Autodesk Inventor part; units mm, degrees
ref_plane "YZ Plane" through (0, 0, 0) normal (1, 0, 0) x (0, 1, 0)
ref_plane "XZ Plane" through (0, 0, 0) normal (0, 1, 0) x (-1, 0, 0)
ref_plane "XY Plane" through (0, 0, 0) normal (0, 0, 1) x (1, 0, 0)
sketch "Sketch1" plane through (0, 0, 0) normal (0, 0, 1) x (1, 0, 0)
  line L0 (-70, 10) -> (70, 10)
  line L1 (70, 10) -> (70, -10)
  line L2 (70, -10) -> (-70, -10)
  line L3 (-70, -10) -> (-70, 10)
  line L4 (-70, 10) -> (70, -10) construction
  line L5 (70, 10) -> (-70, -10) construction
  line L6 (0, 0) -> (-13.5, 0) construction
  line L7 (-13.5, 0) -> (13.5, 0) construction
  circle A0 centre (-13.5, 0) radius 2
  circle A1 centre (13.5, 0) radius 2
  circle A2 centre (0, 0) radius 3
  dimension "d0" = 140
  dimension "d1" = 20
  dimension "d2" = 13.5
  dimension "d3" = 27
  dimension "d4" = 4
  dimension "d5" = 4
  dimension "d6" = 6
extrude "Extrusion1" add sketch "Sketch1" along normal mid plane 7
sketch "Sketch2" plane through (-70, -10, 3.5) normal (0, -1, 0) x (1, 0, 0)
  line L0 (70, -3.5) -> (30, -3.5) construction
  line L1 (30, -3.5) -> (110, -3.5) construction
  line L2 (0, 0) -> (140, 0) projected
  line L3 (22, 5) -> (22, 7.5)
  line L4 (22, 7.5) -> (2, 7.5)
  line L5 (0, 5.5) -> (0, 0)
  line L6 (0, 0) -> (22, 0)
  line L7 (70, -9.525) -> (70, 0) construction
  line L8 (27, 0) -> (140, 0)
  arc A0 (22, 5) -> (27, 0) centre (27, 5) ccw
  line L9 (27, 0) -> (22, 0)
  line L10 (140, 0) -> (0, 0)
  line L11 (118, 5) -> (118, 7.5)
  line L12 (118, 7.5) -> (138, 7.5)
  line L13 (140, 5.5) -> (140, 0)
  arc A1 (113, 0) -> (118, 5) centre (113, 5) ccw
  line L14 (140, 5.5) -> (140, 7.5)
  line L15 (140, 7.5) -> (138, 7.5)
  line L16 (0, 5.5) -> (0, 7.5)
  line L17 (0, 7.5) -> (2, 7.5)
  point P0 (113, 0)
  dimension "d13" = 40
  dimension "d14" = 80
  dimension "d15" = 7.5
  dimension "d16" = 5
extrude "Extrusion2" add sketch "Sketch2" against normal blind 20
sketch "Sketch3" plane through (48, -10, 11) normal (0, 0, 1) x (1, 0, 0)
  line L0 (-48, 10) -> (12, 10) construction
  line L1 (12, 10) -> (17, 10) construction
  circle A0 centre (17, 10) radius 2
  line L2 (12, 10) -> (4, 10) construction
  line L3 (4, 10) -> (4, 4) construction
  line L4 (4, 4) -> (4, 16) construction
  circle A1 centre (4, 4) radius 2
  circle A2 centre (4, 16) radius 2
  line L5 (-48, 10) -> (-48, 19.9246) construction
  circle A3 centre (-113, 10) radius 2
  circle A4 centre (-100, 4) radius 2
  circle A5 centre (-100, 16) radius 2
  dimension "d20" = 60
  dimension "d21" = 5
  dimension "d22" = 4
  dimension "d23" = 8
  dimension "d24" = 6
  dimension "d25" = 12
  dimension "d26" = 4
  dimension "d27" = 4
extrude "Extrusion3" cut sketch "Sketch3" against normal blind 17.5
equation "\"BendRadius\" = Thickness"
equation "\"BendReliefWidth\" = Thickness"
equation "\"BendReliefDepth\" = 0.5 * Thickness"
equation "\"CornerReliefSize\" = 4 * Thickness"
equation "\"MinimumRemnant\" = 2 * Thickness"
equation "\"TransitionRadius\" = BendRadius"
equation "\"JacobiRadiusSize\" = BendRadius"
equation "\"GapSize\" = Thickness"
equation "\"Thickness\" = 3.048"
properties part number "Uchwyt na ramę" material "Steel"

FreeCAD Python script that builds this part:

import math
import FreeCAD as App
import Part
import Sketcher
from FreeCAD import Vector


def add_polygon(sketch, points):
    """Adds a closed chain of lines whose ends are joined by coincident constraints."""
    first, n = sketch.GeometryCount, len(points)
    for a, b in zip(points, points[1:] + points[:1]):
        sketch.addGeometry(Part.LineSegment(App.Vector(*a, 0), App.Vector(*b, 0)), False)
    for i in range(n):
        sketch.addConstraint(Sketcher.Constraint("Coincident", first + i, 2, first + (i + 1) % n, 1))

doc = App.newDocument("Part")
params = doc.addObject("Spreadsheet::Sheet", "Params")
for row, (alias, value) in enumerate([
    ("sketch1_diameter", "4 mm"),
    ("sketch1_diameter2", "6 mm"),
    ("sketch1_width", "140 mm"),
    ("sketch1_height", "20 mm"),
    ("pad1_length", "7 mm"),
    ("sketch2_radius", "5 mm"),
    ("sketch2_height", "7.5 mm"),
    ("sketch2_width", "27 mm"),
    ("pad2_length", "20 mm"),
    ("sketch3_diameter", "4 mm"),
    ("pocket1_length", "17.5 mm"),
], start=1):
    params.set(f"A{row}", alias)
    params.set(f"B{row}", "=" + value)
    params.setAlias(f"B{row}", alias)

body = doc.addObject("PartDesign::Body", "Body")

# Sketch on XY plane
sketch1 = doc.addObject("Sketcher::SketchObject", "Sketch")
body.addObject(sketch1)
sketch1.AttachmentSupport = (doc.XY_Plane, [""])
sketch1.MapMode = "FlatFace"
add_polygon(sketch1, [(70, 10), (-70, 10), (-70, -10), (70, -10)])  # lines 0-3
sketch1.addGeometry(Part.Circle(Vector(-13.5, 0, 0), Vector(0, 0, 1), 2), False)  # 4
sketch1.addGeometry(Part.Circle(Vector(0, 0, 0), Vector(0, 0, 1), 3), False)  # 5
sketch1.addGeometry(Part.Circle(Vector(13.5, 0, 0), Vector(0, 0, 1), 2), False)  # 6
sketch1.addConstraint([
    Sketcher.Constraint("Horizontal", 0),
    Sketcher.Constraint("Vertical", 1),
    Sketcher.Constraint("Horizontal", 2),
    Sketcher.Constraint("Vertical", 3),
    Sketcher.Constraint("Coincident", 5, 3, -1, 1),
    Sketcher.Constraint("Equal", 4, 6),
    Sketcher.Constraint("Symmetric", 4, 3, 6, 3, -1, 1),
    Sketcher.Constraint("Symmetric", 0, 2, 2, 2, -1, 1),
    Sketcher.Constraint("PointOnObject", 4, 3, -1),
    Sketcher.Constraint("Diameter", 4, 4.0),
    Sketcher.Constraint("Diameter", 5, 6.0),
    Sketcher.Constraint("DistanceX", 0, 2, 0, 1, 140.0),
    Sketcher.Constraint("DistanceY", 1, 2, 1, 1, 20.0),
    Sketcher.Constraint("DistanceX", 4, 3, 6, 3, 27.0),
])
sketch1.setExpression("Constraints[13]", "Params.sketch1_diameter")
sketch1.setExpression("Constraints[14]", "Params.sketch1_diameter2")
sketch1.setExpression("Constraints[15]", "Params.sketch1_width")
sketch1.setExpression("Constraints[16]", "Params.sketch1_height")
pad1 = doc.addObject("PartDesign::Pad", "Pad")
body.addObject(pad1)
pad1.Profile = sketch1
pad1.setExpression("Length", "Params.pad1_length")
pad1.Midplane = True

# Sketch on XZ plane
sketch2 = doc.addObject("Sketcher::SketchObject", "Sketch001")
body.addObject(sketch2)
sketch2.AttachmentSupport = (doc.XZ_Plane, [""])
sketch2.MapMode = "FlatFace"
sketch2.AttachmentOffset = App.Placement(Vector(0, 0, 10), App.Rotation())
sketch2.addGeometry([
    Part.LineSegment(Vector(-70, 11, 0), Vector(-70, 3.5, 0)),  # 0
    Part.LineSegment(Vector(-70, 3.5, 0), Vector(-43, 3.5, 0)),  # 1
    Part.ArcOfCircle(Part.Circle(Vector(-43, 8.5, 0), Vector(0, 0, 1), 5), math.radians(180), math.radians(270)),  # 2
    Part.LineSegment(Vector(-48, 8.5, 0), Vector(-48, 11, 0)),  # 3
    Part.LineSegment(Vector(-48, 11, 0), Vector(-70, 11, 0)),  # 4
    Part.ArcOfCircle(Part.Circle(Vector(43, 8.5, 0), Vector(0, 0, 1), 5), math.radians(-90), math.radians(0)),  # 5
    Part.LineSegment(Vector(43, 3.5, 0), Vector(70, 3.5, 0)),  # 6
    Part.LineSegment(Vector(70, 3.5, 0), Vector(70, 11, 0)),  # 7
    Part.LineSegment(Vector(70, 11, 0), Vector(48, 11, 0)),  # 8
    Part.LineSegment(Vector(48, 11, 0), Vector(48, 8.5, 0)),  # 9
], False)
sketch2.addConstraint([
    Sketcher.Constraint("Coincident", 0, 2, 1, 1),
    Sketcher.Constraint("Tangent", 1, 2, 2, 2),
    Sketcher.Constraint("Tangent", 2, 1, 3, 1),
    Sketcher.Constraint("Coincident", 3, 2, 4, 1),
    Sketcher.Constraint("Coincident", 4, 2, 0, 1),
    Sketcher.Constraint("Tangent", 5, 1, 6, 1),
    Sketcher.Constraint("Coincident", 6, 2, 7, 1),
    Sketcher.Constraint("Coincident", 7, 2, 8, 1),
    Sketcher.Constraint("Coincident", 8, 2, 9, 1),
    Sketcher.Constraint("Tangent", 9, 2, 5, 2),
    Sketcher.Constraint("Vertical", 0),
    Sketcher.Constraint("Horizontal", 1),
    Sketcher.Constraint("Vertical", 3),
    Sketcher.Constraint("Horizontal", 4),
    Sketcher.Constraint("Horizontal", 6),
    Sketcher.Constraint("Vertical", 7),
    Sketcher.Constraint("Horizontal", 8),
    Sketcher.Constraint("Vertical", 9),
    Sketcher.Constraint("Equal", 2, 5),
    Sketcher.Constraint("Symmetric", 2, 3, 5, 3, -2),
    Sketcher.Constraint("Symmetric", 4, 2, 7, 2, -2),
    Sketcher.Constraint("Radius", 2, 5.0),
    Sketcher.Constraint("DistanceY", 0, 2, 0, 1, 7.5),
    Sketcher.Constraint("DistanceX", 1, 1, 1, 2, 27.0),
    Sketcher.Constraint("DistanceX", 2, 3, -1, 1, 43.0),
    Sketcher.Constraint("DistanceY", -1, 1, 3, 2, 11.0),
])
sketch2.setExpression("Constraints[21]", "Params.sketch2_radius")
sketch2.setExpression("Constraints[22]", "Params.sketch2_height")
sketch2.setExpression("Constraints[23]", "Params.sketch2_width")
pad2 = doc.addObject("PartDesign::Pad", "Pad001")
body.addObject(pad2)
pad2.Profile = sketch2
pad2.setExpression("Length", "Params.pad2_length")
pad2.Reversed = True

# Sketch on XY plane
sketch3 = doc.addObject("Sketcher::SketchObject", "Sketch002")
body.addObject(sketch3)
sketch3.AttachmentSupport = (doc.XY_Plane, [""])
sketch3.MapMode = "FlatFace"
sketch3.AttachmentOffset = App.Placement(Vector(0, 0, 11), App.Rotation())
sketch3.addGeometry([
    Part.Circle(Vector(65, 0, 0), Vector(0, 0, 1), 2),  # 0
    Part.Circle(Vector(52, -6, 0), Vector(0, 0, 1), 2),  # 1
    Part.Circle(Vector(52, 6, 0), Vector(0, 0, 1), 2),  # 2
    Part.Circle(Vector(-65, 0, 0), Vector(0, 0, 1), 2),  # 3
    Part.Circle(Vector(-52, -6, 0), Vector(0, 0, 1), 2),  # 4
    Part.Circle(Vector(-52, 6, 0), Vector(0, 0, 1), 2),  # 5
], False)
sketch3.addConstraint([
    Sketcher.Constraint("Equal", 0, 1),
    Sketcher.Constraint("Equal", 1, 2),
    Sketcher.Constraint("Equal", 2, 3),
    Sketcher.Constraint("Equal", 3, 4),
    Sketcher.Constraint("Equal", 4, 5),
    Sketcher.Constraint("Symmetric", 0, 3, 3, 3, -1, 1),
    Sketcher.Constraint("Symmetric", 2, 3, 4, 3, -1, 1),
    Sketcher.Constraint("Symmetric", 1, 3, 5, 3, -1, 1),
    Sketcher.Constraint("Symmetric", 1, 3, 4, 3, -2),
    Sketcher.Constraint("PointOnObject", 0, 3, -1),
    Sketcher.Constraint("Diameter", 0, 4.0),
    Sketcher.Constraint("DistanceY", 1, 3, -1, 1, 6.0),
    Sketcher.Constraint("DistanceX", -1, 1, 0, 3, 65.0),
    Sketcher.Constraint("DistanceX", -1, 1, 1, 3, 52.0),
])
sketch3.setExpression("Constraints[10]", "Params.sketch3_diameter")
pocket1 = doc.addObject("PartDesign::Pocket", "Pocket")
body.addObject(pocket1)
pocket1.Profile = sketch3
pocket1.setExpression("Length", "Params.pocket1_length")

doc.recompute()
